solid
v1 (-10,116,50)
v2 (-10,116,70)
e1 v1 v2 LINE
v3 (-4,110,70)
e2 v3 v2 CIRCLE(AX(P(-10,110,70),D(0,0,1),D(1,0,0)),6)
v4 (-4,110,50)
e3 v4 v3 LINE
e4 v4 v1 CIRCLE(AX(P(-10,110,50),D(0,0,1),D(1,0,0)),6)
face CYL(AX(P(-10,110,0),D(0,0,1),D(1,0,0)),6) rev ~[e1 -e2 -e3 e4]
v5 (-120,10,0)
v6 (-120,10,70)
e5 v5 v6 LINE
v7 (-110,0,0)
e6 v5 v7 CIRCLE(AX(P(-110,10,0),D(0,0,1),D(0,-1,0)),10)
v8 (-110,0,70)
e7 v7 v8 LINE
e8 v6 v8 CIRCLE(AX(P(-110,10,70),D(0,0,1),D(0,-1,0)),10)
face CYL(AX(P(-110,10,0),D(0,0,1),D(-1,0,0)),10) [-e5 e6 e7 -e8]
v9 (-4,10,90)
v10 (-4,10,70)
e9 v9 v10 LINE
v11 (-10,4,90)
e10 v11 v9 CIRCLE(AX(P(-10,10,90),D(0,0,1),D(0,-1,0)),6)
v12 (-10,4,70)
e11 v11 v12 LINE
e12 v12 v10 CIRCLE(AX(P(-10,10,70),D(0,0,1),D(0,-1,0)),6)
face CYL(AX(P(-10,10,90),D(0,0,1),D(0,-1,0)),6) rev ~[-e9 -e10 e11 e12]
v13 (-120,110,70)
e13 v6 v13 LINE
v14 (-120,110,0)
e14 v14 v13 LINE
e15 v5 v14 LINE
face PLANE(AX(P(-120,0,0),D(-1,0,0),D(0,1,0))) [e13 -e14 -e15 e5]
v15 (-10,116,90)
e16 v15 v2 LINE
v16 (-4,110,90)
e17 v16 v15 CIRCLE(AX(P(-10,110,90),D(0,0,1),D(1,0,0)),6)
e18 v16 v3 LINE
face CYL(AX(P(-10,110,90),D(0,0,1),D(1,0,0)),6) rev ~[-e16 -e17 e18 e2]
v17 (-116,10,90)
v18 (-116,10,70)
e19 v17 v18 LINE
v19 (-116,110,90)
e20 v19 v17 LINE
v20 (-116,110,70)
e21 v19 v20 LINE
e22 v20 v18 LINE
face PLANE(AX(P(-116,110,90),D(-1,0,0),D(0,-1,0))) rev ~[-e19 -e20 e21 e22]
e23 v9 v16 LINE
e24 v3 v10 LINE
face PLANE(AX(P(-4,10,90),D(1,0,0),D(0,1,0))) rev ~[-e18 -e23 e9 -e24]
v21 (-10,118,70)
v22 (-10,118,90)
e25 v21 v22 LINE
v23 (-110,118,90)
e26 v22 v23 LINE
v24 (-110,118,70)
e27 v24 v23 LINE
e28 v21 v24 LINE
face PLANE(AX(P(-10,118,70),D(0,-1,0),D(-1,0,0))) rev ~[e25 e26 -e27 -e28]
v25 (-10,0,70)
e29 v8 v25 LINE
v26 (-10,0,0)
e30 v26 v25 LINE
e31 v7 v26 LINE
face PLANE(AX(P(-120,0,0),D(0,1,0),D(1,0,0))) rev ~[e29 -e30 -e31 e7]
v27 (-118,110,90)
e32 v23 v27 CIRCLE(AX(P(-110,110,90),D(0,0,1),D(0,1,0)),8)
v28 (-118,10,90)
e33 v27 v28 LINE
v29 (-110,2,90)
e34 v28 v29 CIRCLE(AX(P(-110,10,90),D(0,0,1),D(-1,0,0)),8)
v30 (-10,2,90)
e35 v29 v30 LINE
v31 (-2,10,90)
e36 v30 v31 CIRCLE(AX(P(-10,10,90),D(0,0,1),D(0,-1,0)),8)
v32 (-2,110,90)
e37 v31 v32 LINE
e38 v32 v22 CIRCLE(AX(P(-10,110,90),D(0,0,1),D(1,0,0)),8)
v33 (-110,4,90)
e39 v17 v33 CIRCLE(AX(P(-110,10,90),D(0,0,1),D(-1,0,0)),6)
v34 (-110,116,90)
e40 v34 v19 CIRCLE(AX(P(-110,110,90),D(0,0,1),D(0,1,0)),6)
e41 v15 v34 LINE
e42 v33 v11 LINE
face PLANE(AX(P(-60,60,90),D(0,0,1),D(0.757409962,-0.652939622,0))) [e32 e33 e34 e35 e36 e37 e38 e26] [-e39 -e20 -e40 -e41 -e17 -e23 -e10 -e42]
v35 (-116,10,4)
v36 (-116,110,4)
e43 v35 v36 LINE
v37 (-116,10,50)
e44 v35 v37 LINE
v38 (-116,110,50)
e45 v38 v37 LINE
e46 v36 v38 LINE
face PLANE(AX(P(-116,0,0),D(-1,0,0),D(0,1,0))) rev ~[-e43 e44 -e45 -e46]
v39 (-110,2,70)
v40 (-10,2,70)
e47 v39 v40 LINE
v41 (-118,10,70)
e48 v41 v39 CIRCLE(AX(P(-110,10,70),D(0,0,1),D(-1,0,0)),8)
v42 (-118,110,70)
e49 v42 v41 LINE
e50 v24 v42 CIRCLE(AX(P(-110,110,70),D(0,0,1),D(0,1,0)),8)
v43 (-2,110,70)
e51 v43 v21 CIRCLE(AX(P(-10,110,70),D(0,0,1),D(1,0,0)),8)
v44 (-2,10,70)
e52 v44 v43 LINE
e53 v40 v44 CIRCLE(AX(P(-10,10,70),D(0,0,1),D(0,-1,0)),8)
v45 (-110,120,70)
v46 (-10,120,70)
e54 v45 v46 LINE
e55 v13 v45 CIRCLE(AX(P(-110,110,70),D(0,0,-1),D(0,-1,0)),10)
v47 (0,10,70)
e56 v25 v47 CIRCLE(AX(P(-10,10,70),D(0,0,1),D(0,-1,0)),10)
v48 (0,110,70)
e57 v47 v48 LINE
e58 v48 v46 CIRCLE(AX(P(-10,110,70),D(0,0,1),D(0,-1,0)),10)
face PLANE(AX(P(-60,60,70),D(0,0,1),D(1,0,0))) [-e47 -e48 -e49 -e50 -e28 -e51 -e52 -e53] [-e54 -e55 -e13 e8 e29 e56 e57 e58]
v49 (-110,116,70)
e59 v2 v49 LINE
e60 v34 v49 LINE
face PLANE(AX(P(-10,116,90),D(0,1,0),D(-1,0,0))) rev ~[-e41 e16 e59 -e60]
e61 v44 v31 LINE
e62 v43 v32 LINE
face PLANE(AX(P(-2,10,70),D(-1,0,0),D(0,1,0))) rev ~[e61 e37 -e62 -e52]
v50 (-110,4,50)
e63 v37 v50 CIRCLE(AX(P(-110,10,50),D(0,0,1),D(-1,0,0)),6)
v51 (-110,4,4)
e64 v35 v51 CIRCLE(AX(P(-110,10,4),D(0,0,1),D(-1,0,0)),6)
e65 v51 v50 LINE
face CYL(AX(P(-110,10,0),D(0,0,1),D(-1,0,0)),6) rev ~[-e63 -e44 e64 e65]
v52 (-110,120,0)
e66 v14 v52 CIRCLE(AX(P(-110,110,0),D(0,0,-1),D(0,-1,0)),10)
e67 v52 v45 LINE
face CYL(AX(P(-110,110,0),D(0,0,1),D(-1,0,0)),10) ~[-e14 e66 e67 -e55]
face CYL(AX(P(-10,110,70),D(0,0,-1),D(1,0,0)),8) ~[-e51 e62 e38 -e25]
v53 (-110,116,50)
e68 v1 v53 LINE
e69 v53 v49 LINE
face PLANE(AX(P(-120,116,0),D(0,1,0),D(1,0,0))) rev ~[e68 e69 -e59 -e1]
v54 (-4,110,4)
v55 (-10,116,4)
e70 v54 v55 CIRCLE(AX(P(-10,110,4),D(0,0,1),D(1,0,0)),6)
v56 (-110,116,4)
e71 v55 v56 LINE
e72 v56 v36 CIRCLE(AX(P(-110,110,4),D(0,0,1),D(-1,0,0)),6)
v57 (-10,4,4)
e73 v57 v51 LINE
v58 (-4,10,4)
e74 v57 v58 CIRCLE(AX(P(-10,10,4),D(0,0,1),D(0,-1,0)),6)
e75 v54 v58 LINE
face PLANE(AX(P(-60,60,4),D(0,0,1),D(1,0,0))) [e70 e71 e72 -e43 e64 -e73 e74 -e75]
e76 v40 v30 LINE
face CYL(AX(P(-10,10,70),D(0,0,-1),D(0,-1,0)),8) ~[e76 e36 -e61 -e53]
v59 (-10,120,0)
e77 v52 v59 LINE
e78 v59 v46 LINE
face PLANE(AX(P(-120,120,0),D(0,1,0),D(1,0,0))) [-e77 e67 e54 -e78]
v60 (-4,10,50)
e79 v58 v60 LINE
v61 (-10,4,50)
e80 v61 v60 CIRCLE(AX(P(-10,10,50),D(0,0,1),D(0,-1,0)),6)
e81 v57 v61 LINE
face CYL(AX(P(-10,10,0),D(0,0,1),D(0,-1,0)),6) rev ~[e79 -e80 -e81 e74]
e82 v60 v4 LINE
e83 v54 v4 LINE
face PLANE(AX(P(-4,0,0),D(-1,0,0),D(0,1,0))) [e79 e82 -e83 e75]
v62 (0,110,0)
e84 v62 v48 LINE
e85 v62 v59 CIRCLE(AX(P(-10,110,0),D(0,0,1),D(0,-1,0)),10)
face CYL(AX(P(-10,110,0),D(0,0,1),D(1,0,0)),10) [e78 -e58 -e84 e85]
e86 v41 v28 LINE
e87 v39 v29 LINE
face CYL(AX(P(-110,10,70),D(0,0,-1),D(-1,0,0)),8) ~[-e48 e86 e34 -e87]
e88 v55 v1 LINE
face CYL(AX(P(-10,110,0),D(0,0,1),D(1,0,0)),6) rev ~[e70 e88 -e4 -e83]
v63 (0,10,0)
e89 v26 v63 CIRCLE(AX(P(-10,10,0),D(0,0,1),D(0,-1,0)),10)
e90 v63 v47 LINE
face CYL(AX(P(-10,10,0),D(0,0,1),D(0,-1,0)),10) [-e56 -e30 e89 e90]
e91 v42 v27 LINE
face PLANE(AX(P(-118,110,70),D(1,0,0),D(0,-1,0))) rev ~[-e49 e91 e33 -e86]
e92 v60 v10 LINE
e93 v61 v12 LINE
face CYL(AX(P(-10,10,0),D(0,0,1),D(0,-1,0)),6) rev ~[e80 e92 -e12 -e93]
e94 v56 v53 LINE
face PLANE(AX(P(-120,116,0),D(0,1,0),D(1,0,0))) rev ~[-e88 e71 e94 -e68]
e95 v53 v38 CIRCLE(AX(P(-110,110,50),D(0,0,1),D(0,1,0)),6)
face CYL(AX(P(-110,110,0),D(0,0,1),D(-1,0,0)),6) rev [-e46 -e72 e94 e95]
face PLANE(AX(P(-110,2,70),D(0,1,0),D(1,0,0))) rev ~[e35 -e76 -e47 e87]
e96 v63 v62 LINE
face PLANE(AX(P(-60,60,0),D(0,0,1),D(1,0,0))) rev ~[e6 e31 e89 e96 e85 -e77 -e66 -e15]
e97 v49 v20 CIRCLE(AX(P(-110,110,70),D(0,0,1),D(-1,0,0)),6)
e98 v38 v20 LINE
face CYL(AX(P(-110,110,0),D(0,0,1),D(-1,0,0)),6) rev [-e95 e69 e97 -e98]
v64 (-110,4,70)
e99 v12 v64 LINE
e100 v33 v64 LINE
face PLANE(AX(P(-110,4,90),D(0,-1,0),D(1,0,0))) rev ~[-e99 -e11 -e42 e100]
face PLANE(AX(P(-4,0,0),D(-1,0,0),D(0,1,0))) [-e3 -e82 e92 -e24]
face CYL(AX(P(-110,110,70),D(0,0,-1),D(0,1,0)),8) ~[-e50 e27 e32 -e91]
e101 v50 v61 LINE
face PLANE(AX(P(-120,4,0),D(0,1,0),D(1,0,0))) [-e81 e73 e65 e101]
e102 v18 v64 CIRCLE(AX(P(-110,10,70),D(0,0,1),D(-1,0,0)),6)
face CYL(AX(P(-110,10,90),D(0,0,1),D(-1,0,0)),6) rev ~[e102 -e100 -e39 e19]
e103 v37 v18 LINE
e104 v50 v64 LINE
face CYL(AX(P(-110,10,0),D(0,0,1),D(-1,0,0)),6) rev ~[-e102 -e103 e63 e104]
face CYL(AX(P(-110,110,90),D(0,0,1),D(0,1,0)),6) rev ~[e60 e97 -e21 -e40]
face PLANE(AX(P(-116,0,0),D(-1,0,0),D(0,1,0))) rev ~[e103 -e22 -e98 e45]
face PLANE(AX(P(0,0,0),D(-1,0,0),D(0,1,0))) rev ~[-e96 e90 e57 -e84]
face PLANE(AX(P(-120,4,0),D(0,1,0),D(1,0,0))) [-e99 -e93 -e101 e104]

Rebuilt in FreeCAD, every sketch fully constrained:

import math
import FreeCAD as App
import Part
import Sketcher
Q = App.Units.Quantity


def edges_at(feature, points):
    """Names of the edges that pass closest to the given points."""
    edges = feature.Shape.Edges
    near = lambda p: min(range(len(edges)), key=lambda i: edges[i].distToShape(Part.Vertex(*p))[0])
    return sorted({f"Edge{near(p) + 1}" for p in points})


def faces_at(feature, points):
    """Names of the faces that lie closest to the given points."""
    faces = feature.Shape.Faces
    near = lambda p: min(range(len(faces)), key=lambda i: faces[i].distToShape(Part.Vertex(*p))[0])
    return sorted({f"Face{near(p) + 1}" for p in points})

doc = App.newDocument("Part")
body = doc.addObject("PartDesign::Body", "Body")

# Sketch on XY plane
sketch1 = body.newObject("Sketcher::SketchObject", "Sketch")
sketch1.AttachmentSupport = (doc.getObject("XY_Plane"), [""])
sketch1.MapMode = "FlatFace"
sketch1.addGeometry([
    Part.LineSegment(App.Vector(-120, 120, 0), App.Vector(-120, 0, 0)),
    Part.LineSegment(App.Vector(-120, 0, 0), App.Vector(0, 0, 0)),
    Part.LineSegment(App.Vector(0, 0, 0), App.Vector(0, 120, 0)),
    Part.LineSegment(App.Vector(0, 120, 0), App.Vector(-120, 120, 0)),
], False)
sketch1.addConstraint([
    Sketcher.Constraint("Coincident", 0, 2, 1, 1),
    Sketcher.Constraint("Coincident", 1, 2, 2, 1),
    Sketcher.Constraint("Coincident", 2, 2, 3, 1),
    Sketcher.Constraint("Coincident", 3, 2, 0, 1),
    Sketcher.Constraint("Vertical", 0),
    Sketcher.Constraint("Horizontal", 1),
    Sketcher.Constraint("Vertical", 2),
    Sketcher.Constraint("Horizontal", 3),
    Sketcher.Constraint("Coincident", 1, 2, -1, 1),
    Sketcher.Constraint("Equal", 3, 0),
    Sketcher.Constraint("DistanceX", 1, 1, 1, 2, Q("120 mm")),
])
pad1 = body.newObject("PartDesign::Pad", "Pad")
pad1.Profile = sketch1
pad1.Length = 70
doc.recompute()

fillet = body.newObject("PartDesign::Fillet", "Fillet")
fillet.Base = (pad1, edges_at(pad1, [
    (0, 120, 35),
    (0, 0, 35),
    (-120, 0, 35),
    (-120, 120, 35),
]))
fillet.Radius = 10
doc.recompute()

thickness = body.newObject("PartDesign::Thickness", "Thickness")
thickness.Base = (fillet, faces_at(fillet, [(-60, 60, 70)]))
thickness.Value = 4
thickness.Reversed = True
thickness.Join = "Intersection"

# Sketch on XY plane
sketch2 = body.newObject("Sketcher::SketchObject", "Sketch001")
sketch2.AttachmentSupport = (doc.getObject("XY_Plane"), [""])
sketch2.MapMode = "FlatFace"
sketch2.AttachmentOffset = App.Placement(App.Vector(0, 0, 70), App.Rotation())
sketch2.addGeometry([
    Part.LineSegment(App.Vector(-2, 110, 0), App.Vector(-2, 10, 0)),  # 0
    Part.ArcOfCircle(Part.Circle(App.Vector(-10, 10, 0), App.Vector(0, 0, 1), 8), math.radians(-90), math.radians(0)),  # 1
    Part.LineSegment(App.Vector(-10, 2, 0), App.Vector(-110, 2, 0)),  # 2
    Part.ArcOfCircle(Part.Circle(App.Vector(-110, 10, 0), App.Vector(0, 0, 1), 8), math.radians(-180), math.radians(-90)),  # 3
    Part.LineSegment(App.Vector(-118, 10, 0), App.Vector(-118, 110, 0)),  # 4
    Part.ArcOfCircle(Part.Circle(App.Vector(-110, 110, 0), App.Vector(0, 0, 1), 8), math.radians(90), math.radians(180)),  # 5
    Part.LineSegment(App.Vector(-110, 118, 0), App.Vector(-10, 118, 0)),  # 6
    Part.ArcOfCircle(Part.Circle(App.Vector(-10, 110, 0), App.Vector(0, 0, 1), 8), math.radians(0), math.radians(90)),  # 7
], False)
sketch2.addConstraint([
    Sketcher.Constraint("Tangent", 0, 2, 1, 2),
    Sketcher.Constraint("Tangent", 1, 1, 2, 1),
    Sketcher.Constraint("Tangent", 2, 2, 3, 2),
    Sketcher.Constraint("Tangent", 3, 1, 4, 1),
    Sketcher.Constraint("Tangent", 4, 2, 5, 2),
    Sketcher.Constraint("Tangent", 5, 1, 6, 1),
    Sketcher.Constraint("Tangent", 6, 2, 7, 2),
    Sketcher.Constraint("Tangent", 7, 1, 0, 1),
    Sketcher.Constraint("Vertical", 0),
    Sketcher.Constraint("Horizontal", 2),
    Sketcher.Constraint("Vertical", 4),
    Sketcher.Constraint("Horizontal", 6),
    Sketcher.Constraint("Equal", 1, 3),
    Sketcher.Constraint("Equal", 3, 5),
    Sketcher.Constraint("Equal", 5, 7),
    Sketcher.Constraint("Equal", 6, 0),
    Sketcher.Constraint("Radius", 1, Q("8 mm")),
    Sketcher.Constraint("DistanceX", 2, 2, 2, 1, Q("100 mm")),
    Sketcher.Constraint("DistanceX", 1, 3, -1, 1, Q("10 mm")),
    Sketcher.Constraint("DistanceY", -1, 1, 1, 3, Q("10 mm")),
])
pad2 = body.newObject("PartDesign::Pad", "Pad001")
pad2.Profile = sketch2
pad2.Length = 20

# Sketch on XY plane
sketch3 = body.newObject("Sketcher::SketchObject", "Sketch002")
sketch3.AttachmentSupport = (doc.getObject("XY_Plane"), [""])
sketch3.MapMode = "FlatFace"
sketch3.AttachmentOffset = App.Placement(App.Vector(0, 0, 90), App.Rotation())
sketch3.addGeometry([
    Part.LineSegment(App.Vector(-4, 110, 0), App.Vector(-4, 10, 0)),  # 0
    Part.ArcOfCircle(Part.Circle(App.Vector(-10, 10, 0), App.Vector(0, 0, 1), 6), math.radians(-90), math.radians(0)),  # 1
    Part.LineSegment(App.Vector(-10, 4, 0), App.Vector(-110, 4, 0)),  # 2
    Part.ArcOfCircle(Part.Circle(App.Vector(-110, 10, 0), App.Vector(0, 0, 1), 6), math.radians(-180), math.radians(-90)),  # 3
    Part.LineSegment(App.Vector(-116, 10, 0), App.Vector(-116, 110, 0)),  # 4
    Part.ArcOfCircle(Part.Circle(App.Vector(-110, 110, 0), App.Vector(0, 0, 1), 6), math.radians(90), math.radians(180)),  # 5
    Part.LineSegment(App.Vector(-110, 116, 0), App.Vector(-10, 116, 0)),  # 6
    Part.ArcOfCircle(Part.Circle(App.Vector(-10, 110, 0), App.Vector(0, 0, 1), 6), math.radians(0), math.radians(90)),  # 7
], False)
sketch3.addConstraint([
    Sketcher.Constraint("Tangent", 0, 2, 1, 2),
    Sketcher.Constraint("Tangent", 1, 1, 2, 1),
    Sketcher.Constraint("Tangent", 2, 2, 3, 2),
    Sketcher.Constraint("Tangent", 3, 1, 4, 1),
    Sketcher.Constraint("Tangent", 4, 2, 5, 2),
    Sketcher.Constraint("Tangent", 5, 1, 6, 1),
    Sketcher.Constraint("Tangent", 6, 2, 7, 2),
    Sketcher.Constraint("Tangent", 7, 1, 0, 1),
    Sketcher.Constraint("Vertical", 0),
    Sketcher.Constraint("Horizontal", 2),
    Sketcher.Constraint("Vertical", 4),
    Sketcher.Constraint("Horizontal", 6),
    Sketcher.Constraint("Equal", 1, 3),
    Sketcher.Constraint("Equal", 3, 5),
    Sketcher.Constraint("Equal", 5, 7),
    Sketcher.Constraint("Equal", 6, 0),
    Sketcher.Constraint("Radius", 1, Q("6 mm")),
    Sketcher.Constraint("DistanceX", 2, 2, 2, 1, Q("100 mm")),
    Sketcher.Constraint("DistanceX", 1, 3, -1, 1, Q("10 mm")),
    Sketcher.Constraint("DistanceY", -1, 1, 1, 3, Q("10 mm")),
])
pocket1 = body.newObject("PartDesign::Pocket", "Pocket")
pocket1.Profile = sketch3
pocket1.Length = 40

doc.recompute()
